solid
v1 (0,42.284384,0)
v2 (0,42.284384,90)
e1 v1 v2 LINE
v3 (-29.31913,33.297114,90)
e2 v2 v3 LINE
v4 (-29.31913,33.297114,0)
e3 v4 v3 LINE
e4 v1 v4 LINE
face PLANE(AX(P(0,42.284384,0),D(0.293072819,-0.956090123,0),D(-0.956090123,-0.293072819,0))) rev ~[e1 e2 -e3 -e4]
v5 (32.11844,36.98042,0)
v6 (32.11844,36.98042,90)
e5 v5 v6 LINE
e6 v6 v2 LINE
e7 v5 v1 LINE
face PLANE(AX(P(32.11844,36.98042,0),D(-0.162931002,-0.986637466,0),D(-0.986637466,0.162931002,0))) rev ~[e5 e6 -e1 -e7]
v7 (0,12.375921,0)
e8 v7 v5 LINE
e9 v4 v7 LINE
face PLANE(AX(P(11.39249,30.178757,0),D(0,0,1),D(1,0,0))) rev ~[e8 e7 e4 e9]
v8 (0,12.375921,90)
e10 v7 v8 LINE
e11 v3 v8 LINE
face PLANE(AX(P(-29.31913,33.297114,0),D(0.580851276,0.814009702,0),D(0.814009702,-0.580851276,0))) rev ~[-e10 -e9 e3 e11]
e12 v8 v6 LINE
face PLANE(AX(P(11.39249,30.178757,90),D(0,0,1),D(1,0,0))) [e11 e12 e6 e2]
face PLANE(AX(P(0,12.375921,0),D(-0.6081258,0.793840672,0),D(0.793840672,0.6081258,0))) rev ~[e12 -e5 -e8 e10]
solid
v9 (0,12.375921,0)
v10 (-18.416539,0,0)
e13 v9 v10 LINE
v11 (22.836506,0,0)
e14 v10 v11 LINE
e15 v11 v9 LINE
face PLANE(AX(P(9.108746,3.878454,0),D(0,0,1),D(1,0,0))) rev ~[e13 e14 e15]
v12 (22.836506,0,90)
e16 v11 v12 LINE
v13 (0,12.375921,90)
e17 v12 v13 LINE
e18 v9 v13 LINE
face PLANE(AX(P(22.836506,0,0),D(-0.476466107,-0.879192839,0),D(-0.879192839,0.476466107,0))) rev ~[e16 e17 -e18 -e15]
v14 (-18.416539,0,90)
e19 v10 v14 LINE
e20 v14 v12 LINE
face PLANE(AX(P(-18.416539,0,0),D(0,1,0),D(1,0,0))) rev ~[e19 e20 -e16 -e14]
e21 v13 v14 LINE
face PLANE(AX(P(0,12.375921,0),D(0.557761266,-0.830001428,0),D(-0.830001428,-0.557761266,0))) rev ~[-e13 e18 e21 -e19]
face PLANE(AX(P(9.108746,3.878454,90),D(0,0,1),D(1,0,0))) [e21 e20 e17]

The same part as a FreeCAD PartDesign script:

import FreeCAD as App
import Part
import Sketcher
from FreeCAD import Vector
Q = App.Units.Quantity


def add_polygon(sketch, points):
    """Adds a closed chain of lines whose ends are joined by coincident constraints."""
    first, n = sketch.GeometryCount, len(points)
    for a, b in zip(points, points[1:] + points[:1]):
        sketch.addGeometry(Part.LineSegment(App.Vector(*a, 0), App.Vector(*b, 0)), False)
    for i in range(n):
        sketch.addConstraint(Sketcher.Constraint("Coincident", first + i, 2, first + (i + 1) % n, 1))

doc = App.newDocument("Part")
body = doc.addObject("PartDesign::Body", "Body")
body.AllowCompound = True

sketch1 = body.newObject("Sketcher::SketchObject", "Sketch")
sketch1.AttachmentSupport = (doc.getObject("XY_Plane"), [""])
sketch1.MapMode = "FlatFace"
add_polygon(sketch1, [(32.11844, 36.98042), (0, 42.284384), (-29.31913, 33.297114), (0, 12.375921)])
add_polygon(sketch1, [(22.836506, 0), (0, 12.375921), (-18.416539, 0)])
sketch1.addConstraint(Sketcher.Constraint("Horizontal", 6))
sketch1.addConstraint(Sketcher.Constraint("Coincident", 4, 2, 2, 2))
sketch1.addConstraint(Sketcher.Constraint("PointOnObject", 0, 2, -2))
sketch1.addConstraint(Sketcher.Constraint("PointOnObject", 2, 2, -2))
sketch1.addConstraint(Sketcher.Constraint("PointOnObject", 5, 2, -1))
sketch1.addConstraint(Sketcher.Constraint("Distance", 4, Q("25.974399 mm")))
sketch1.addConstraint(Sketcher.Constraint("DistanceY", 2, 2, 3, 2, Q("24.604499 mm")))
sketch1.addConstraint(Sketcher.Constraint("DistanceX", 6, 1, 6, 2, Q("41.253045 mm")))
sketch1.addConstraint(Sketcher.Constraint("DistanceX", 1, 2, -1, 1, Q("29.31913 mm")))
sketch1.addConstraint(Sketcher.Constraint("DistanceY", -1, 1, 2, 2, Q("12.375921 mm")))
sketch1.addConstraint(Sketcher.Constraint("DistanceX", -1, 1, 3, 2, Q("32.11844 mm")))
sketch1.addConstraint(Sketcher.Constraint("DistanceY", 1, 2, 0, 2, Q("8.98727 mm")))
sketch1.addConstraint(Sketcher.Constraint("Distance", 0, Q("32.553436 mm")))
pad1 = body.newObject("PartDesign::Pad", "Pad")
pad1.Profile = sketch1
pad1.Length = 90

doc.recompute()
